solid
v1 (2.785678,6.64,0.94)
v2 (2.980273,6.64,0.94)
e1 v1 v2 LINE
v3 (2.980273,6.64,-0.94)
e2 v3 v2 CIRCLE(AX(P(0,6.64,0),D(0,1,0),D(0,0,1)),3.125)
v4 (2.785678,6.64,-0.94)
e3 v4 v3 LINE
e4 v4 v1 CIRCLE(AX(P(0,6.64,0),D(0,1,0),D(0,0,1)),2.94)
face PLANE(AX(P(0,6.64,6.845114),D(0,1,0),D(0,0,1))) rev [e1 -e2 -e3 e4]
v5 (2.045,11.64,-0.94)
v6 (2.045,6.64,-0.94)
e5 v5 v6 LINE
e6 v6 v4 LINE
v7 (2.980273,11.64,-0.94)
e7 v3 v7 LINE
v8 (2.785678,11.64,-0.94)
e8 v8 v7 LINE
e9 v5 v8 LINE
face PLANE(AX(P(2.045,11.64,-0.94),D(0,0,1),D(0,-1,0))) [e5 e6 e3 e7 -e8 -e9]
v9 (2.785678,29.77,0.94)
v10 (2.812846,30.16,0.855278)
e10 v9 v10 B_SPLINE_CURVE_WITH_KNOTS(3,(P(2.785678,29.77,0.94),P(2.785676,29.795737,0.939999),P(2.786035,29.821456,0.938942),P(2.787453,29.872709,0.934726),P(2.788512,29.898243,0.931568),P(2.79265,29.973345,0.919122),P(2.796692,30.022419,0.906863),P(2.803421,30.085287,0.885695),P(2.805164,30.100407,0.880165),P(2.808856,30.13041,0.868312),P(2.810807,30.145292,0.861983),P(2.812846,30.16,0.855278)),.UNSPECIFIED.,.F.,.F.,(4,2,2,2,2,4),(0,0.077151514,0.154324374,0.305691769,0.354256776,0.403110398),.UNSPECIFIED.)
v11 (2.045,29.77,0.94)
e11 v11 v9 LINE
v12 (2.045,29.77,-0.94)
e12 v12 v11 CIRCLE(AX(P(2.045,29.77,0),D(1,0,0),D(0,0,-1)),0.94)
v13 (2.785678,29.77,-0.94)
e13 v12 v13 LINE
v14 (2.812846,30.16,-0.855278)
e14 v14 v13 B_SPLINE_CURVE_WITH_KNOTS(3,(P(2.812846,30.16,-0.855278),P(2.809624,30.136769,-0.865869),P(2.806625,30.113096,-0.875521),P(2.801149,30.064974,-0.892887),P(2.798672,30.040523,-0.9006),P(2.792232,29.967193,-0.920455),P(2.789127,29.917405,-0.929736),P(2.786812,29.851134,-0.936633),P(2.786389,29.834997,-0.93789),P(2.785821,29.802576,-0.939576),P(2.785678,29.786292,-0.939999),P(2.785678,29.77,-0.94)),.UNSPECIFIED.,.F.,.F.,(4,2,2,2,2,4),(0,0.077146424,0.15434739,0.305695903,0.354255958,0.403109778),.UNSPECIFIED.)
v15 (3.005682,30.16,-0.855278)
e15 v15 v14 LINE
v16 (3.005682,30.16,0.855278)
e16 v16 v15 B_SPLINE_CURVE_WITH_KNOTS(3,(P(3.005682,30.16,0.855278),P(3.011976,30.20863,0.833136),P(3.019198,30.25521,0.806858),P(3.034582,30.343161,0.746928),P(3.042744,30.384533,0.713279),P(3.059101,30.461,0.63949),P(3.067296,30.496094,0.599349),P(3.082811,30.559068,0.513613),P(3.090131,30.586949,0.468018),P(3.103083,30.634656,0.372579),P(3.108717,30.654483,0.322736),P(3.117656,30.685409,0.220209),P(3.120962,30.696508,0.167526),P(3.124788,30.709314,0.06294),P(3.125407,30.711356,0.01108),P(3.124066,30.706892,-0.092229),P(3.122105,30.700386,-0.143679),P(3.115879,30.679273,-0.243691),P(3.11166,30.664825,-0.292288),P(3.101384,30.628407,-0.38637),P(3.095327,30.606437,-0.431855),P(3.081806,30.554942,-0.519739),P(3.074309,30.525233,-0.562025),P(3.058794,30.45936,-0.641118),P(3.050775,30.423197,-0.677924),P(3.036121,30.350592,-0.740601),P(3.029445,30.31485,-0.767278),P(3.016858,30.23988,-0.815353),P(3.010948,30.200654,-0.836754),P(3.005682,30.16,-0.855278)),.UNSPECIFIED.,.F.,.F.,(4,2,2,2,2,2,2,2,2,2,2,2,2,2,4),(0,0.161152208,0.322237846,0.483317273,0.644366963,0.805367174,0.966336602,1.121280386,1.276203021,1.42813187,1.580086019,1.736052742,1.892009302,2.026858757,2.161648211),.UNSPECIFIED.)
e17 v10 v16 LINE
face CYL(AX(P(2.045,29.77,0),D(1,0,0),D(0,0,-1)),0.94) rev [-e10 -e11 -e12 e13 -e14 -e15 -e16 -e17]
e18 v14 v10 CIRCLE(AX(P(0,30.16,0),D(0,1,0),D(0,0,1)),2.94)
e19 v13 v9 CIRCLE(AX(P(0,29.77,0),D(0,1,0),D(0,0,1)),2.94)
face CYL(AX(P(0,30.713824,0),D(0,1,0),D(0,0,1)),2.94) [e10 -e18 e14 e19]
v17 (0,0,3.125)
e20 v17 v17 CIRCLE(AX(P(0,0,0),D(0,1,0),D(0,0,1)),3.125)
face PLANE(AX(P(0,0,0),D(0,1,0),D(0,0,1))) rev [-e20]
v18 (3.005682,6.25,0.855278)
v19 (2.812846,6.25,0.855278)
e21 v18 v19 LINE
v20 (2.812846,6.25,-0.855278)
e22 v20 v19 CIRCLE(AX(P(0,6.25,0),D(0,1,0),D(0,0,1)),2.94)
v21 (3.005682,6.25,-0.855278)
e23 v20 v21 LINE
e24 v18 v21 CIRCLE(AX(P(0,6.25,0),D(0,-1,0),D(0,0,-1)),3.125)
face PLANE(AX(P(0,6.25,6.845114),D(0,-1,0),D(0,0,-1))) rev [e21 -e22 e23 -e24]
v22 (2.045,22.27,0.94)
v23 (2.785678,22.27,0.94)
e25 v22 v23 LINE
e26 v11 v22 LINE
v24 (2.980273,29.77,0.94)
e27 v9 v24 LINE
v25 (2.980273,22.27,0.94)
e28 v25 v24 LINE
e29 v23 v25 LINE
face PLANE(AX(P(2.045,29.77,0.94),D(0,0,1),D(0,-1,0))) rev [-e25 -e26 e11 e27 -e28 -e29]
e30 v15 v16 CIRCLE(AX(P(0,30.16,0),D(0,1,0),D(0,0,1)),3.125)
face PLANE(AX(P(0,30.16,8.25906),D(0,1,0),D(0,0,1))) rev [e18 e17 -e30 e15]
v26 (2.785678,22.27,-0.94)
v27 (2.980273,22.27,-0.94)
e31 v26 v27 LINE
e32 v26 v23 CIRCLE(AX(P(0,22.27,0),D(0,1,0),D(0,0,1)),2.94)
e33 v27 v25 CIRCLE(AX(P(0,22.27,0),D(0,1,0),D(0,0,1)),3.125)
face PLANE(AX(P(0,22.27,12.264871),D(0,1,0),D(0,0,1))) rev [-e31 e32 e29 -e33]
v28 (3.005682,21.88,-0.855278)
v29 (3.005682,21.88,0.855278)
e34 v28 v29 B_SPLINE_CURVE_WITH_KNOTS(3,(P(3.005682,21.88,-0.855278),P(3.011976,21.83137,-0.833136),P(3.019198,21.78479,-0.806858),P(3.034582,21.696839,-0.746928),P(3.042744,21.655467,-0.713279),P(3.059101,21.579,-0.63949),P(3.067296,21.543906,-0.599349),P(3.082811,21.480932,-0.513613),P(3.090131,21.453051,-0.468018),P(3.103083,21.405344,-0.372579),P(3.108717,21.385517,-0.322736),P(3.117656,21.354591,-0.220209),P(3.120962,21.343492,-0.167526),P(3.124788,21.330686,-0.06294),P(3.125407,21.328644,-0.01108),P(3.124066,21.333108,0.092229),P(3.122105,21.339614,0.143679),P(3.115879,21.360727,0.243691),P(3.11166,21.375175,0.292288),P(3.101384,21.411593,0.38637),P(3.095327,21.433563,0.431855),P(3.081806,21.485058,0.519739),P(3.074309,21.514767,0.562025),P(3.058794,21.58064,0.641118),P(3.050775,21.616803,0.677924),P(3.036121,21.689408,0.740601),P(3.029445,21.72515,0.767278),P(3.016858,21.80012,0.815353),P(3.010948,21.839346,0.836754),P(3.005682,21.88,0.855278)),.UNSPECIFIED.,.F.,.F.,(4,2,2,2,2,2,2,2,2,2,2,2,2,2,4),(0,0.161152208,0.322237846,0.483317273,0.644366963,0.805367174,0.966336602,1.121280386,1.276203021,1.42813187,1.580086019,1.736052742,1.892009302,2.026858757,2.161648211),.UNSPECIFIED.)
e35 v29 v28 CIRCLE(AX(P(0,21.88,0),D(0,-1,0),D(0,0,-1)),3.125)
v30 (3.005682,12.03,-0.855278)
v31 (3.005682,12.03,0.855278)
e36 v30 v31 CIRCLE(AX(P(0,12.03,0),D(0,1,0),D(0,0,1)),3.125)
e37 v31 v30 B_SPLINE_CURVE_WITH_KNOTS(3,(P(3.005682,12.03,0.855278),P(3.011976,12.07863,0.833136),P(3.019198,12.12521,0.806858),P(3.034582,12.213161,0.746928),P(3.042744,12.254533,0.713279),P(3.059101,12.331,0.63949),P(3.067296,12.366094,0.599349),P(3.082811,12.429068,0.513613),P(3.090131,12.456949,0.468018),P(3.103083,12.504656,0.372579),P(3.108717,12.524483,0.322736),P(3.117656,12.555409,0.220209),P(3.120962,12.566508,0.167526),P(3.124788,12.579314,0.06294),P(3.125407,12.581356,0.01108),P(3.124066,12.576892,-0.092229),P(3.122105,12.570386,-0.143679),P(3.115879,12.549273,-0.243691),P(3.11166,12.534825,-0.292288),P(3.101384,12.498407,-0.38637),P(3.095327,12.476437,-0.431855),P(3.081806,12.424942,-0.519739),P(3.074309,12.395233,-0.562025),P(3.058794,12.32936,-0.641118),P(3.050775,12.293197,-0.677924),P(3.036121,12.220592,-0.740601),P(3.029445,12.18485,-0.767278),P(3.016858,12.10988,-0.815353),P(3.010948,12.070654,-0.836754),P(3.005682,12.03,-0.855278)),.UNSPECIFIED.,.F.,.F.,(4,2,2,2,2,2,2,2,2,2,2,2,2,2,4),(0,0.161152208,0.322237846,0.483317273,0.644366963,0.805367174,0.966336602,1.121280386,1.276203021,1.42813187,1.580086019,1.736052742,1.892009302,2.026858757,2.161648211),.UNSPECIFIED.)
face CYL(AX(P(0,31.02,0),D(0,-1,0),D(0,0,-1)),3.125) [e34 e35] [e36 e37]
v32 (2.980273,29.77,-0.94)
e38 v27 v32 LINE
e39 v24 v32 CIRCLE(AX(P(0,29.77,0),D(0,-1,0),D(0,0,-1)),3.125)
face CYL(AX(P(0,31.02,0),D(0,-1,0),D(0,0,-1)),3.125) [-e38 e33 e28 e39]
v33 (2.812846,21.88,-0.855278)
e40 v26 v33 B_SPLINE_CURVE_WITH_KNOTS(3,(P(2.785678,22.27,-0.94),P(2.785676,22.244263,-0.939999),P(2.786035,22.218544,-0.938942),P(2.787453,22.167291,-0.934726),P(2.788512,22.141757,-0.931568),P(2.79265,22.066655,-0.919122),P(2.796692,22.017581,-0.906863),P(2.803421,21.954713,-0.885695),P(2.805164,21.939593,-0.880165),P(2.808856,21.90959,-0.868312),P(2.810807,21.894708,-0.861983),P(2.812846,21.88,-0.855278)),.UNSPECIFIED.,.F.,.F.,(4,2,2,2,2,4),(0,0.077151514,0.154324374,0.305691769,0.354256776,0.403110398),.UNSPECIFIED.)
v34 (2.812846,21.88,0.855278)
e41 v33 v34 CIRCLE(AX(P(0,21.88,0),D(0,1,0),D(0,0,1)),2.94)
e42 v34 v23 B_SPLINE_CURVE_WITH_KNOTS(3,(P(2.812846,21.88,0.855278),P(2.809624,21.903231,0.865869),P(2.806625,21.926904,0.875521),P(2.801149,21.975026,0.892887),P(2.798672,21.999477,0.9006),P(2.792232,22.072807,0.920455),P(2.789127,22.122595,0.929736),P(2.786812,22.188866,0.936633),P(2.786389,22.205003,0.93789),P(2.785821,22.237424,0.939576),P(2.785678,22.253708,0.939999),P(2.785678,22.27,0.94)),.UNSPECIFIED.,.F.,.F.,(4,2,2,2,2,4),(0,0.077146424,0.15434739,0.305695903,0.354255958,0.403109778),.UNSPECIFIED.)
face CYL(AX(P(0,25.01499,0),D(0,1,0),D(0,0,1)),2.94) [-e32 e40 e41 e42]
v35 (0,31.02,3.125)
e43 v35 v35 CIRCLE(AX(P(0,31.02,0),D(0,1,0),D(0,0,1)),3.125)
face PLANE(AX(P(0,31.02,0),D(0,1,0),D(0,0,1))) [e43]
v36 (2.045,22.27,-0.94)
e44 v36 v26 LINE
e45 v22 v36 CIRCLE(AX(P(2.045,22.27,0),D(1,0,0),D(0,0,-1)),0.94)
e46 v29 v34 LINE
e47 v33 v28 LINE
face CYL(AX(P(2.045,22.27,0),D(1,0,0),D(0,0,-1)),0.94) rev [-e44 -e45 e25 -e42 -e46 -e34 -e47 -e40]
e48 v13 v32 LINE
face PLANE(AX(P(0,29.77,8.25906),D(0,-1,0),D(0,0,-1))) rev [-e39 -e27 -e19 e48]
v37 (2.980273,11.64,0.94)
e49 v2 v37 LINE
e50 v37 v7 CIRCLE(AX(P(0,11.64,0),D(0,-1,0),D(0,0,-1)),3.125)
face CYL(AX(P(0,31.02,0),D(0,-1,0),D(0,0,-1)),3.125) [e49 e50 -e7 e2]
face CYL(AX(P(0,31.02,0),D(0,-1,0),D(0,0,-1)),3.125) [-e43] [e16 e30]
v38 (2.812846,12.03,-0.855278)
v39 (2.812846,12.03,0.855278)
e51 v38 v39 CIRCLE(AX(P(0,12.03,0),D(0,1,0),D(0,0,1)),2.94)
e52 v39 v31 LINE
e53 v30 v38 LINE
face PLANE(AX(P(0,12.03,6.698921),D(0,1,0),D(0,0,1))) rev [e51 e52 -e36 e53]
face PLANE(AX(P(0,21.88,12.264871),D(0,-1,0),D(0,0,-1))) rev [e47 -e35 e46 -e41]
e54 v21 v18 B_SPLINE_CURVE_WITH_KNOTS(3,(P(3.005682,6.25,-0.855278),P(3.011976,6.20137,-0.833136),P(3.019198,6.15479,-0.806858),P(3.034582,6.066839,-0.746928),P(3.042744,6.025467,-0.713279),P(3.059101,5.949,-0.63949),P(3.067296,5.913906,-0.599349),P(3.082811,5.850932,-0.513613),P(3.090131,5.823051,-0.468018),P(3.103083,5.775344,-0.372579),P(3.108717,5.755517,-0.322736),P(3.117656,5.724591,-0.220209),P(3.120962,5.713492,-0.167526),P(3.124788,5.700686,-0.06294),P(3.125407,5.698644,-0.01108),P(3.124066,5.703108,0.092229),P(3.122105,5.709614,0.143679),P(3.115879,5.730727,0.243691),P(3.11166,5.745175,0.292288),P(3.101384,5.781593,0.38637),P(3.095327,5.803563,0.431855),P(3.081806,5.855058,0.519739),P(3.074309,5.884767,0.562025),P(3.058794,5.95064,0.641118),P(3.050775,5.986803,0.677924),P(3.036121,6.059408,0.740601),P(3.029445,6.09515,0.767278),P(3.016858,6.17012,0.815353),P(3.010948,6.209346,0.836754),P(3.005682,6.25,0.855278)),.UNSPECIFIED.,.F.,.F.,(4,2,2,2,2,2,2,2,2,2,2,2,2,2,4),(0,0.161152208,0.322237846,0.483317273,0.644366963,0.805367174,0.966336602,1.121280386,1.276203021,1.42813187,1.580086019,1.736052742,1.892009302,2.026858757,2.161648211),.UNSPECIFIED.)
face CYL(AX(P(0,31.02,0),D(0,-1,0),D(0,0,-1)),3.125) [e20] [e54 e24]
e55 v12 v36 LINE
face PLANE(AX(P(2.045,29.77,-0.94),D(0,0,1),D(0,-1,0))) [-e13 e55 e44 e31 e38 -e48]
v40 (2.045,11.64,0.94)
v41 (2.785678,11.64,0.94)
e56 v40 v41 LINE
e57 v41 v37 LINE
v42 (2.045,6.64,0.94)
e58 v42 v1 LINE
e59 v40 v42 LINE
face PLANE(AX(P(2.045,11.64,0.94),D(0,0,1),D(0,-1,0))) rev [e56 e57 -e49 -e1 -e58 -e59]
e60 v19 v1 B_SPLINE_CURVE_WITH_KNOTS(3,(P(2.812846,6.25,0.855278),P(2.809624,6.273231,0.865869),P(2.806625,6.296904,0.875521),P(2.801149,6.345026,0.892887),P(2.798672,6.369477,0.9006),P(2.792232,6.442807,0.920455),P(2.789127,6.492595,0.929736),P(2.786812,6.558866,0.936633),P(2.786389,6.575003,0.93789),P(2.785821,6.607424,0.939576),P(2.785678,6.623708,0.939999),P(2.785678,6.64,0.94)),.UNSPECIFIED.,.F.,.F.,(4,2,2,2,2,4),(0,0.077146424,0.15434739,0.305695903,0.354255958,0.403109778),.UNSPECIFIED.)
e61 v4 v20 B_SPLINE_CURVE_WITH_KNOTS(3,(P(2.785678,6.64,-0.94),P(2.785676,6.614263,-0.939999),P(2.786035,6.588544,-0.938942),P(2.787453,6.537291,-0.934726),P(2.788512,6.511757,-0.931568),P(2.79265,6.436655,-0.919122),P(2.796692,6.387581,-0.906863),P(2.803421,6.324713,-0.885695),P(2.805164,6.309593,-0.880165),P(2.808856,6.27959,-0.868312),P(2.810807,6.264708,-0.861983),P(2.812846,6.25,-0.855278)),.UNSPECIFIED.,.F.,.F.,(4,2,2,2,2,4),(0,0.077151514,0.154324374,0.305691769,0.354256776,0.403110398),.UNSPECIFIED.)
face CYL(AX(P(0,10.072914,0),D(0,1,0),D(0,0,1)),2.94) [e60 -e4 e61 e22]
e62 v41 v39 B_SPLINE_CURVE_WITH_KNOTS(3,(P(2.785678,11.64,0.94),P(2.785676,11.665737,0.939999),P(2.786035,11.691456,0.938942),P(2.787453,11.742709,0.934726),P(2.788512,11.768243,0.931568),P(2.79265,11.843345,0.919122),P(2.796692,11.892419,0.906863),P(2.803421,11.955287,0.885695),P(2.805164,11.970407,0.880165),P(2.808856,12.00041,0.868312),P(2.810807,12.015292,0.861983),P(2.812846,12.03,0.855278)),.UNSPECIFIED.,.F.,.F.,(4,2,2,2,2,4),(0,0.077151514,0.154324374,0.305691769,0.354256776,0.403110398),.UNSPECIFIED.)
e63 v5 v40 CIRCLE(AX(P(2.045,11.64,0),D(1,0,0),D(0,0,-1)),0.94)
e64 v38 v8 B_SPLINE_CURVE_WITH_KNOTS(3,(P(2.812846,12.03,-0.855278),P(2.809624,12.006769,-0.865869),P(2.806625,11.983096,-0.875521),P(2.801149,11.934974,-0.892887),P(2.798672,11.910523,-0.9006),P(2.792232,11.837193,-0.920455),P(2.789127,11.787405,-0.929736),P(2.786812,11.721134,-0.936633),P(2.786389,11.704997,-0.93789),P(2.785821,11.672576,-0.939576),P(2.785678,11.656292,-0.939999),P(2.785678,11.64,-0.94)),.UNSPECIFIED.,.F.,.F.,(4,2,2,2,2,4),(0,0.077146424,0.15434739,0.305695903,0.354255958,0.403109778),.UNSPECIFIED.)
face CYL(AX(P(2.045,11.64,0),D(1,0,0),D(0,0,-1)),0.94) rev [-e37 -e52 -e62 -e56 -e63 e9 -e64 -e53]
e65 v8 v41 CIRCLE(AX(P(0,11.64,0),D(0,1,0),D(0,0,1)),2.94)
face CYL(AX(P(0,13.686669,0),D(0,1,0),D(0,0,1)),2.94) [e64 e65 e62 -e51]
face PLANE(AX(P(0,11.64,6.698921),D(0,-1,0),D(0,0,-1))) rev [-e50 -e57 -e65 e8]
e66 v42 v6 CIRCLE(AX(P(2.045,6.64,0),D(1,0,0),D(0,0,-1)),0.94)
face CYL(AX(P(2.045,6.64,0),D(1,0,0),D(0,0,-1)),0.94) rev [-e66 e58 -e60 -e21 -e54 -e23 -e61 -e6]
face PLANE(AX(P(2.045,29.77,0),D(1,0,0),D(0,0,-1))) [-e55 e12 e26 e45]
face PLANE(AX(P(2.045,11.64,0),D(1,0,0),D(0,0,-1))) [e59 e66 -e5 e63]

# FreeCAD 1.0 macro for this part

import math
import FreeCAD as App
import Part
import Sketcher

doc = App.newDocument("Part")
body = doc.addObject("PartDesign::Body", "Body")

# Sketch on XZ plane
sketch1 = body.newObject("Sketcher::SketchObject", "Sketch")
sketch1.AttachmentSupport = (doc.getObject("XZ_Plane"), [""])
sketch1.MapMode = "FlatFace"
sketch1.addGeometry(Part.Circle(App.Vector(0, 0, 0), App.Vector(0, 0, 1), 3.1), False)
sketch1.addConstraint(Sketcher.Constraint("Coincident", 0, 3, -1, 1))
sketch1.addConstraint(Sketcher.Constraint("Diameter", 0, 6.25))
pad1 = body.newObject("PartDesign::Pad", "Pad")
pad1.Profile = sketch1
pad1.Length = 31.02
pad1.Reversed = True

# Sketch on YZ plane
sketch2 = body.newObject("Sketcher::SketchObject", "Sketch001")
sketch2.AttachmentSupport = (doc.getObject("YZ_Plane"), [""])
sketch2.MapMode = "FlatFace"
sketch2.addGeometry(Part.LineSegment(App.Vector(6.64, 6.85, 0), App.Vector(6.25, 6.85, 0)), False)
sketch2.addGeometry(Part.LineSegment(App.Vector(6.25, 6.85, 0), App.Vector(6.25, 2.94, 0)), False)
sketch2.addGeometry(Part.LineSegment(App.Vector(6.25, 2.94, 0), App.Vector(6.64, 2.94, 0)), False)
sketch2.addGeometry(Part.LineSegment(App.Vector(6.64, 2.94, 0), App.Vector(6.64, 6.85, 0)), False)
sketch2.addConstraint(Sketcher.Constraint("Coincident", 0, 2, 1, 1))
sketch2.addConstraint(Sketcher.Constraint("Coincident", 1, 2, 2, 1))
sketch2.addConstraint(Sketcher.Constraint("Coincident", 2, 2, 3, 1))
sketch2.addConstraint(Sketcher.Constraint("Coincident", 3, 2, 0, 1))
sketch2.addConstraint(Sketcher.Constraint("Horizontal", 0))
sketch2.addConstraint(Sketcher.Constraint("Vertical", 1))
sketch2.addConstraint(Sketcher.Constraint("Horizontal", 2))
sketch2.addConstraint(Sketcher.Constraint("Vertical", 3))
sketch2.addConstraint(Sketcher.Constraint("DistanceX", 0, 2, 0, 1, 0.39))
sketch2.addConstraint(Sketcher.Constraint("DistanceX", -1, 1, 0, 2, 6.25))
sketch2.addConstraint(Sketcher.Constraint("DistanceY", -1, 1, 1, 2, 2.94))
sketch2.addConstraint(Sketcher.Constraint("DistanceY", 1, 2, 1, 1, 3.905114))
groove = body.newObject("PartDesign::Groove", "Groove")
groove.Profile = sketch2
groove.ReferenceAxis = (sketch2, ["H_Axis"])
groove.Angle = 360

# Sketch on YZ plane
sketch3 = body.newObject("Sketcher::SketchObject", "Sketch002")
sketch3.AttachmentSupport = (doc.getObject("YZ_Plane"), [""])
sketch3.MapMode = "FlatFace"
sketch3.addGeometry(Part.LineSegment(App.Vector(12.03, 6.7, 0), App.Vector(11.64, 6.7, 0)), False)
sketch3.addGeometry(Part.LineSegment(App.Vector(11.64, 6.7, 0), App.Vector(11.64, 2.94, 0)), False)
sketch3.addGeometry(Part.LineSegment(App.Vector(11.64, 2.94, 0), App.Vector(12.03, 2.94, 0)), False)
sketch3.addGeometry(Part.LineSegment(App.Vector(12.03, 2.94, 0), App.Vector(12.03, 6.7, 0)), False)
sketch3.addConstraint(Sketcher.Constraint("Coincident", 0, 2, 1, 1))
sketch3.addConstraint(Sketcher.Constraint("Coincident", 1, 2, 2, 1))
sketch3.addConstraint(Sketcher.Constraint("Coincident", 2, 2, 3, 1))
sketch3.addConstraint(Sketcher.Constraint("Coincident", 3, 2, 0, 1))
sketch3.addConstraint(Sketcher.Constraint("Horizontal", 0))
sketch3.addConstraint(Sketcher.Constraint("Vertical", 1))
sketch3.addConstraint(Sketcher.Constraint("Horizontal", 2))
sketch3.addConstraint(Sketcher.Constraint("Vertical", 3))
sketch3.addConstraint(Sketcher.Constraint("DistanceX", 0, 2, 0, 1, 0.39))
sketch3.addConstraint(Sketcher.Constraint("DistanceX", -1, 1, 0, 2, 11.64))
sketch3.addConstraint(Sketcher.Constraint("DistanceY", -1, 1, 1, 2, 2.94))
sketch3.addConstraint(Sketcher.Constraint("DistanceY", 1, 2, 1, 1, 3.758921))
groove2 = body.newObject("PartDesign::Groove", "Groove001")
groove2.Profile = sketch3
groove2.ReferenceAxis = (sketch3, ["H_Axis"])
groove2.Angle = 360

# Sketch on YZ plane
sketch4 = body.newObject("Sketcher::SketchObject", "Sketch003")
sketch4.AttachmentSupport = (doc.getObject("YZ_Plane"), [""])
sketch4.MapMode = "FlatFace"
sketch4.addGeometry(Part.LineSegment(App.Vector(22.27, 12.26, 0), App.Vector(21.88, 12.26, 0)), False)
sketch4.addGeometry(Part.LineSegment(App.Vector(21.88, 12.26, 0), App.Vector(21.88, 2.94, 0)), False)
sketch4.addGeometry(Part.LineSegment(App.Vector(21.88, 2.94, 0), App.Vector(22.27, 2.94, 0)), False)
sketch4.addGeometry(Part.LineSegment(App.Vector(22.27, 2.94, 0), App.Vector(22.27, 12.26, 0)), False)
sketch4.addConstraint(Sketcher.Constraint("Coincident", 0, 2, 1, 1))
sketch4.addConstraint(Sketcher.Constraint("Coincident", 1, 2, 2, 1))
sketch4.addConstraint(Sketcher.Constraint("Coincident", 2, 2, 3, 1))
sketch4.addConstraint(Sketcher.Constraint("Coincident", 3, 2, 0, 1))
sketch4.addConstraint(Sketcher.Constraint("Horizontal", 0))
sketch4.addConstraint(Sketcher.Constraint("Vertical", 1))
sketch4.addConstraint(Sketcher.Constraint("Horizontal", 2))
sketch4.addConstraint(Sketcher.Constraint("Vertical", 3))
sketch4.addConstraint(Sketcher.Constraint("DistanceX", 0, 2, 0, 1, 0.39))
sketch4.addConstraint(Sketcher.Constraint("DistanceX", -1, 1, 0, 2, 21.88))
sketch4.addConstraint(Sketcher.Constraint("DistanceY", -1, 1, 1, 2, 2.94))
sketch4.addConstraint(Sketcher.Constraint("DistanceY", 1, 2, 1, 1, 9.324871))
groove3 = body.newObject("PartDesign::Groove", "Groove002")
groove3.Profile = sketch4
groove3.ReferenceAxis = (sketch4, ["H_Axis"])
groove3.Angle = 360

# Sketch on YZ plane
sketch5 = body.newObject("Sketcher::SketchObject", "Sketch004")
sketch5.AttachmentSupport = (doc.getObject("YZ_Plane"), [""])
sketch5.MapMode = "FlatFace"
sketch5.addGeometry(Part.LineSegment(App.Vector(30.16, 8.26, 0), App.Vector(29.77, 8.26, 0)), False)
sketch5.addGeometry(Part.LineSegment(App.Vector(29.77, 8.26, 0), App.Vector(29.77, 2.94, 0)), False)
sketch5.addGeometry(Part.LineSegment(App.Vector(29.77, 2.94, 0), App.Vector(30.16, 2.94, 0)), False)
sketch5.addGeometry(Part.LineSegment(App.Vector(30.16, 2.94, 0), App.Vector(30.16, 8.26, 0)), False)
sketch5.addConstraint(Sketcher.Constraint("Coincident", 0, 2, 1, 1))
sketch5.addConstraint(Sketcher.Constraint("Coincident", 1, 2, 2, 1))
sketch5.addConstraint(Sketcher.Constraint("Coincident", 2, 2, 3, 1))
sketch5.addConstraint(Sketcher.Constraint("Coincident", 3, 2, 0, 1))
sketch5.addConstraint(Sketcher.Constraint("Horizontal", 0))
sketch5.addConstraint(Sketcher.Constraint("Vertical", 1))
sketch5.addConstraint(Sketcher.Constraint("Horizontal", 2))
sketch5.addConstraint(Sketcher.Constraint("Vertical", 3))
sketch5.addConstraint(Sketcher.Constraint("DistanceX", 0, 2, 0, 1, 0.39))
sketch5.addConstraint(Sketcher.Constraint("DistanceX", -1, 1, 0, 2, 29.77))
sketch5.addConstraint(Sketcher.Constraint("DistanceY", -1, 1, 1, 2, 2.94))
sketch5.addConstraint(Sketcher.Constraint("DistanceY", 1, 2, 1, 1, 5.31906))
groove4 = body.newObject("PartDesign::Groove", "Groove003")
groove4.Profile = sketch5
groove4.ReferenceAxis = (sketch5, ["H_Axis"])
groove4.Angle = 360

# Sketch on YZ plane
sketch6 = body.newObject("Sketcher::SketchObject", "Sketch005")
sketch6.AttachmentSupport = (doc.getObject("YZ_Plane"), [""])
sketch6.MapMode = "FlatFace"
sketch6.AttachmentOffset = App.Placement(App.Vector(0, 0, 3.125), App.Rotation())
sketch6.addGeometry(Part.LineSegment(App.Vector(22.3, -0.9, 0), App.Vector(29.8, -0.9, 0)), False)
sketch6.addGeometry(Part.ArcOfCircle(Part.Circle(App.Vector(29.8, 0, 0), App.Vector(0, 0, 1), 0.9), math.radians(-90), math.radians(90)), False)
sketch6.addGeometry(Part.LineSegment(App.Vector(29.8, 0.9, 0), App.Vector(22.3, 0.9, 0)), False)
sketch6.addGeometry(Part.ArcOfCircle(Part.Circle(App.Vector(22.3, 0, 0), App.Vector(0, 0, 1), 0.9), math.radians(90), math.radians(270)), False)
sketch6.addConstraint(Sketcher.Constraint("Tangent", 0, 2, 1, 1))
sketch6.addConstraint(Sketcher.Constraint("Tangent", 1, 2, 2, 1))
sketch6.addConstraint(Sketcher.Constraint("Tangent", 2, 2, 3, 1))
sketch6.addConstraint(Sketcher.Constraint("Tangent", 3, 2, 0, 1))
sketch6.addConstraint(Sketcher.Constraint("Horizontal", 0))
sketch6.addConstraint(Sketcher.Constraint("Horizontal", 2))
sketch6.addConstraint(Sketcher.Constraint("PointOnObject", 1, 3, -1))
sketch6.addConstraint(Sketcher.Constraint("Radius", 1, 0.94))
sketch6.addConstraint(Sketcher.Constraint("DistanceX", 0, 1, 0, 2, 7.5))
sketch6.addConstraint(Sketcher.Constraint("DistanceX", -1, 1, 1, 3, 29.77))
pocket1 = body.newObject("PartDesign::Pocket", "Pocket")
pocket1.Profile = sketch6
pocket1.Length = 1.08

# Sketch on YZ plane
sketch7 = body.newObject("Sketcher::SketchObject", "Sketch006")
sketch7.AttachmentSupport = (doc.getObject("YZ_Plane"), [""])
sketch7.MapMode = "FlatFace"
sketch7.AttachmentOffset = App.Placement(App.Vector(0, 0, 3.125), App.Rotation())
sketch7.addGeometry(Part.LineSegment(App.Vector(6.6, -0.9, 0), App.Vector(11.6, -0.9, 0)), False)
sketch7.addGeometry(Part.ArcOfCircle(Part.Circle(App.Vector(11.6, 0, 0), App.Vector(0, 0, 1), 0.9), math.radians(-90), math.radians(90)), False)
sketch7.addGeometry(Part.LineSegment(App.Vector(11.6, 0.9, 0), App.Vector(6.6, 0.9, 0)), False)
sketch7.addGeometry(Part.ArcOfCircle(Part.Circle(App.Vector(6.6, 0, 0), App.Vector(0, 0, 1), 0.9), math.radians(90), math.radians(270)), False)
sketch7.addConstraint(Sketcher.Constraint("Tangent", 0, 2, 1, 1))
sketch7.addConstraint(Sketcher.Constraint("Tangent", 1, 2, 2, 1))
sketch7.addConstraint(Sketcher.Constraint("Tangent", 2, 2, 3, 1))
sketch7.addConstraint(Sketcher.Constraint("Tangent", 3, 2, 0, 1))
sketch7.addConstraint(Sketcher.Constraint("Horizontal", 0))
sketch7.addConstraint(Sketcher.Constraint("Horizontal", 2))
sketch7.addConstraint(Sketcher.Constraint("PointOnObject", 1, 3, -1))
sketch7.addConstraint(Sketcher.Constraint("DistanceX", 0, 1, 0, 2, 5.0))
sketch7.addConstraint(Sketcher.Constraint("Radius", 1, 0.94))
sketch7.addConstraint(Sketcher.Constraint("DistanceX", -1, 1, 1, 3, 11.64))
pocket2 = body.newObject("PartDesign::Pocket", "Pocket001")
pocket2.Profile = sketch7
pocket2.Length = 1.08

doc.recompute()
